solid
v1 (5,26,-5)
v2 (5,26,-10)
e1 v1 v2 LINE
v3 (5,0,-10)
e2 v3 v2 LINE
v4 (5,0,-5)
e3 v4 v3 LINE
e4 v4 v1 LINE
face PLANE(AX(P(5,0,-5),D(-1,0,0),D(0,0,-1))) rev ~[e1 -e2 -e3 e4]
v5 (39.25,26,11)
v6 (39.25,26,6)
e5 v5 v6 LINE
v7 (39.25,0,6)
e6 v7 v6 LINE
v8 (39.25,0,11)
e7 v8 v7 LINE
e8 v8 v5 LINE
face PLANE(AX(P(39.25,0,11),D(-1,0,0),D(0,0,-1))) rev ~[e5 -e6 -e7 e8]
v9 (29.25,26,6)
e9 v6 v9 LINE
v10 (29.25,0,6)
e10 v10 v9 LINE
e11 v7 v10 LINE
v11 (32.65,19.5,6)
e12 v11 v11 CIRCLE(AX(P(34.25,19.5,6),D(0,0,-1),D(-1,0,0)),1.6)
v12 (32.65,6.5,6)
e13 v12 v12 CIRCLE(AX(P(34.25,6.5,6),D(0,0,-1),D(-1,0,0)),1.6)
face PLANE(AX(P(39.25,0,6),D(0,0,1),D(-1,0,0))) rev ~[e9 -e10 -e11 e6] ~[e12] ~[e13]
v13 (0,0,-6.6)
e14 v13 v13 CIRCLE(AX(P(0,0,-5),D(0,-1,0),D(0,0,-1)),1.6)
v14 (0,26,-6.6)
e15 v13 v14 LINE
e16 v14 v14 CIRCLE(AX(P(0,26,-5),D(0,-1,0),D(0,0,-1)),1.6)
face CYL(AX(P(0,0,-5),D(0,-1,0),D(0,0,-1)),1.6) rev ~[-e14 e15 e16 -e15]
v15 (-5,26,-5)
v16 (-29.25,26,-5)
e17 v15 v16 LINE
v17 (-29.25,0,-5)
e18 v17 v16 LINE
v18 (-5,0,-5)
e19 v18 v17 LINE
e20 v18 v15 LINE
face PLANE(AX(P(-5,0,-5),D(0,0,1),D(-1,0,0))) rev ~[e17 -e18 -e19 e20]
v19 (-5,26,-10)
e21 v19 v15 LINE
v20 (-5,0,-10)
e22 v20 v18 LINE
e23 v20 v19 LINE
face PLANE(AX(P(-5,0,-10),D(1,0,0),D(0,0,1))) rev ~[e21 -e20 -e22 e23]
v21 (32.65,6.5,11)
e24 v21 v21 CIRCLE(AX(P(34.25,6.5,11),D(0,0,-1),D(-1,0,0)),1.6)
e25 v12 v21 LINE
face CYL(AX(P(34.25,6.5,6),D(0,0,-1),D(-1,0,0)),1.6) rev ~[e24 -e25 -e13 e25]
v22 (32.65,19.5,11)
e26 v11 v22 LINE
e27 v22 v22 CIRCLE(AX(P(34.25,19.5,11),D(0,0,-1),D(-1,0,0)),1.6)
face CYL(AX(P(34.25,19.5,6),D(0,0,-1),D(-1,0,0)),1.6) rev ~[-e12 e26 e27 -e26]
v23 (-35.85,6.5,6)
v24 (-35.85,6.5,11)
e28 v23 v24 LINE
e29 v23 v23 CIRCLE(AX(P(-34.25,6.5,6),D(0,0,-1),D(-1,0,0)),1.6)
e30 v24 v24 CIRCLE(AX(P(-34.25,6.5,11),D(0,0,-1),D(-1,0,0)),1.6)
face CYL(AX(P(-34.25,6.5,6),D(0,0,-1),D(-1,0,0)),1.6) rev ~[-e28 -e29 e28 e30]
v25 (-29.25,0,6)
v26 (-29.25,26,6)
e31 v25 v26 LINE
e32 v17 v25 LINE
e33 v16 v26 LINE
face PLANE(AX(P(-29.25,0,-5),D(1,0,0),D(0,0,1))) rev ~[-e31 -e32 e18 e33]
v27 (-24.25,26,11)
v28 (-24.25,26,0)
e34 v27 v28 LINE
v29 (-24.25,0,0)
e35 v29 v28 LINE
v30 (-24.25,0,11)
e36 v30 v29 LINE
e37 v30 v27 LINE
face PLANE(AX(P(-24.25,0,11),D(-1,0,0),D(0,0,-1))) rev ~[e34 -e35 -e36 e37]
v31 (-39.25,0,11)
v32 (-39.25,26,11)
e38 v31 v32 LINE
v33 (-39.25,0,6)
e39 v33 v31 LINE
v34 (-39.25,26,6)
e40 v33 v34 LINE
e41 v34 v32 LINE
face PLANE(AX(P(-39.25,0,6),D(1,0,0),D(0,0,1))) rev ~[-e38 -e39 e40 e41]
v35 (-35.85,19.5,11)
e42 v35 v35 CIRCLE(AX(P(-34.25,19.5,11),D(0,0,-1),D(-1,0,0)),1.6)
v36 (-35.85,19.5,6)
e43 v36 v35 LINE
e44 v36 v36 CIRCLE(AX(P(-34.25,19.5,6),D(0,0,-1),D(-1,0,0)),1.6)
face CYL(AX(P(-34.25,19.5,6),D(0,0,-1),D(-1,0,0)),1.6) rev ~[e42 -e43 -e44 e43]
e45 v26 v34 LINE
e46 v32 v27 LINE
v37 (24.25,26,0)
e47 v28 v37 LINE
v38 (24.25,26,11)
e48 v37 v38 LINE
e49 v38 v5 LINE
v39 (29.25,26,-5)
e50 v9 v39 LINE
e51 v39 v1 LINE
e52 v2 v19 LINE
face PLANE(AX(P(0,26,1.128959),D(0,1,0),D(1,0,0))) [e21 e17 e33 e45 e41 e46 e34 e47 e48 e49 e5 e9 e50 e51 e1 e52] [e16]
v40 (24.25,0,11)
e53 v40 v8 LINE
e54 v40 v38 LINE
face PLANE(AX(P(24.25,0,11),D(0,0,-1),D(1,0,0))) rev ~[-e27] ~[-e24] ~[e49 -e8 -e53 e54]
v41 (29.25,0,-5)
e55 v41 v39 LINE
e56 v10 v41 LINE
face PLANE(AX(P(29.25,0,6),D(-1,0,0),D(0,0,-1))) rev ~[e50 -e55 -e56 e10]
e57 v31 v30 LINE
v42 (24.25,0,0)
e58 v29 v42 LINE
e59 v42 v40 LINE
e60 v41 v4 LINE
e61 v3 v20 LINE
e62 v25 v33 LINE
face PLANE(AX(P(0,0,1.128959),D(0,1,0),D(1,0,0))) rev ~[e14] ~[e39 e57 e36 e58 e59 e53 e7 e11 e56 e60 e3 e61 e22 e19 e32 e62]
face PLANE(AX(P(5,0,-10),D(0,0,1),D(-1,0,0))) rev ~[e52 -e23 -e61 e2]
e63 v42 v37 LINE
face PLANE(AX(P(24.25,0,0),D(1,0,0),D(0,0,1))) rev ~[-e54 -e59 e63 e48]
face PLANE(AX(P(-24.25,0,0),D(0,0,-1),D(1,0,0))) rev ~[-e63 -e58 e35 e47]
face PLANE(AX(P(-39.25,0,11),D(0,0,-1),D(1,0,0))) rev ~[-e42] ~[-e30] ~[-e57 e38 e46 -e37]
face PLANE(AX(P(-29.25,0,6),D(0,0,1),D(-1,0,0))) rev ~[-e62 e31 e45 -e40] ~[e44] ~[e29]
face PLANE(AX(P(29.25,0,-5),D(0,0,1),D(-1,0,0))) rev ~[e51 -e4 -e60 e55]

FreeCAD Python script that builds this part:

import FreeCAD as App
import Part
import Sketcher


def add_polygon(sketch, points):
    """Adds a closed chain of lines whose ends are joined by coincident constraints."""
    first, n = sketch.GeometryCount, len(points)
    for a, b in zip(points, points[1:] + points[:1]):
        sketch.addGeometry(Part.LineSegment(App.Vector(*a, 0), App.Vector(*b, 0)), False)
    for i in range(n):
        sketch.addConstraint(Sketcher.Constraint("Coincident", first + i, 2, first + (i + 1) % n, 1))

doc = App.newDocument("Part")
body = doc.addObject("PartDesign::Body", "Body")

# Sketch on XZ plane
sketch1 = body.newObject("Sketcher::SketchObject", "Sketch")
sketch1.AttachmentSupport = (doc.getObject("XZ_Plane"), [""])
sketch1.MapMode = "FlatFace"
add_polygon(sketch1, [(-24.25, 0), (24.25, 0), (24.25, 11), (39.25, 11), (39.25, 6), (29.25, 6), (29.25, -5), (5, -5), (5, -10), (-5, -10), (-5, -5), (-29.25, -5), (-29.25, 6), (-39.25, 6), (-39.25, 11), (-24.25, 11)])  # lines 0-15
sketch1.addConstraint([
    Sketcher.Constraint("Horizontal", 0),
    Sketcher.Constraint("Vertical", 1),
    Sketcher.Constraint("Horizontal", 2),
    Sketcher.Constraint("Vertical", 3),
    Sketcher.Constraint("Horizontal", 4),
    Sketcher.Constraint("Vertical", 5),
    Sketcher.Constraint("Horizontal", 6),
    Sketcher.Constraint("Vertical", 7),
    Sketcher.Constraint("Horizontal", 8),
    Sketcher.Constraint("Vertical", 9),
    Sketcher.Constraint("Horizontal", 10),
    Sketcher.Constraint("Vertical", 11),
    Sketcher.Constraint("Horizontal", 12),
    Sketcher.Constraint("Vertical", 13),
    Sketcher.Constraint("Horizontal", 14),
    Sketcher.Constraint("Vertical", 15),
    Sketcher.Constraint("Symmetric", 0, 2, 15, 2, -1, 1),
    Sketcher.Constraint("Symmetric", 6, 2, 9, 2, -2),
    Sketcher.Constraint("Symmetric", 4, 2, 11, 2, -2),
    Sketcher.Constraint("Symmetric", 2, 2, 13, 2, -2),
    Sketcher.Constraint("Equal", 4, 8),
    Sketcher.Constraint("Equal", 1, 5),
    Sketcher.Constraint("Equal", 3, 7),
    Sketcher.Constraint("DistanceX", 2, 1, 2, 2, 15.0),
    Sketcher.Constraint("DistanceX", 4, 2, 4, 1, 10.0),
    Sketcher.Constraint("DistanceY", 1, 1, 1, 2, 11.0),
    Sketcher.Constraint("DistanceY", 3, 2, 3, 1, 5.0),
    Sketcher.Constraint("DistanceX", 0, 1, 0, 2, 48.5),
])
pad1 = body.newObject("PartDesign::Pad", "Pad")
pad1.Profile = sketch1
pad1.Length = 26
pad1.Reversed = True

# Sketch on XZ plane
sketch2 = body.newObject("Sketcher::SketchObject", "Sketch001")
sketch2.AttachmentSupport = (doc.getObject("XZ_Plane"), [""])
sketch2.MapMode = "FlatFace"
sketch2.addGeometry(Part.Circle(App.Vector(0, -5, 0), App.Vector(0, 0, 1), 1.6), False)
sketch2.addConstraint([
    Sketcher.Constraint("PointOnObject", 0, 3, -2),
    Sketcher.Constraint("Diameter", 0, 3.2),
    Sketcher.Constraint("DistanceY", 0, 3, -1, 1, 5.0),
])
pocket1 = body.newObject("PartDesign::Pocket", "Pocket")
pocket1.Profile = sketch2
pocket1.Length = 26

# Sketch on XY plane
sketch3 = body.newObject("Sketcher::SketchObject", "Sketch002")
sketch3.AttachmentSupport = (doc.getObject("XY_Plane"), [""])
sketch3.MapMode = "FlatFace"
sketch3.AttachmentOffset = App.Placement(App.Vector(0, 0, 6), App.Rotation())
sketch3.addGeometry([
    Part.Circle(App.Vector(-34.25, 19.5, 0), App.Vector(0, 0, 1), 1.6),
    Part.Circle(App.Vector(-34.25, 6.5, 0), App.Vector(0, 0, 1), 1.6),
    Part.Circle(App.Vector(34.25, 6.5, 0), App.Vector(0, 0, 1), 1.6),
    Part.Circle(App.Vector(34.25, 19.5, 0), App.Vector(0, 0, 1), 1.6),
], False)
sketch3.addConstraint([
    Sketcher.Constraint("Equal", 0, 1),
    Sketcher.Constraint("Equal", 1, 2),
    Sketcher.Constraint("Equal", 2, 3),
    Sketcher.Constraint("Symmetric", 1, 3, 2, 3, -2),
    Sketcher.Constraint("Symmetric", 0, 3, 3, 3, -2),
    Sketcher.Constraint("Vertical", 0, 3, 1, 3),
    Sketcher.Constraint("Diameter", 0, 3.2),
    Sketcher.Constraint("DistanceY", 1, 3, 0, 3, 13.0),
    Sketcher.Constraint("DistanceY", -1, 1, 0, 3, 19.5),
    Sketcher.Constraint("DistanceX", 1, 3, 2, 3, 68.5),
])
pocket2 = body.newObject("PartDesign::Pocket", "Pocket001")
pocket2.Profile = sketch3
pocket2.Length = 26
pocket2.Reversed = True

doc.recompute()
